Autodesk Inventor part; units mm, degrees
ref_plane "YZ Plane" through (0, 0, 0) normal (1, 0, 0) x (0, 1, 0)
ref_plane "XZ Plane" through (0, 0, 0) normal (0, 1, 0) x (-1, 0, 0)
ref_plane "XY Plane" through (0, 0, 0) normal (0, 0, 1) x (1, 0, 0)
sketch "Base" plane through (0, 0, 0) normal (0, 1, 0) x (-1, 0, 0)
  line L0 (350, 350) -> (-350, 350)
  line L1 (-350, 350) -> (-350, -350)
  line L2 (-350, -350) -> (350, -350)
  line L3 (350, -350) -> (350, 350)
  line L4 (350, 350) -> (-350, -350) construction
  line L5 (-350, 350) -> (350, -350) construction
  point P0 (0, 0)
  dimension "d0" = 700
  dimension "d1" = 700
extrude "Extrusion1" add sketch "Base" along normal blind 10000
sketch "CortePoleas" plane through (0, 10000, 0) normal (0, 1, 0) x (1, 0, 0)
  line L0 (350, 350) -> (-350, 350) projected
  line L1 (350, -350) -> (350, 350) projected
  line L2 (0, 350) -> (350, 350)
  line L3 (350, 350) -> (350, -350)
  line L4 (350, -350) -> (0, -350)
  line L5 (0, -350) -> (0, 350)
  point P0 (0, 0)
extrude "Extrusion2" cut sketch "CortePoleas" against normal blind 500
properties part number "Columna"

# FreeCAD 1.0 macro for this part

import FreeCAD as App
import Part
import Sketcher

V = App.Vector

doc = App.newDocument("Part")
body = doc.addObject("PartDesign::Body", "Body")

# Sketch on XZ plane
sketch1 = body.newObject("Sketcher::SketchObject", "Sketch")
sketch1.AttachmentSupport = (doc.getObject("XZ_Plane"), [""])
sketch1.MapMode = "FlatFace"
sketch1.addGeometry(Part.LineSegment(V(-350, -350, 0), V(-350, 350, 0)), False)
sketch1.addGeometry(Part.LineSegment(V(-350, 350, 0), V(350, 350, 0)), False)
sketch1.addGeometry(Part.LineSegment(V(350, 350, 0), V(350, -350, 0)), False)
sketch1.addGeometry(Part.LineSegment(V(350, -350, 0), V(-350, -350, 0)), False)
sketch1.addConstraint(Sketcher.Constraint("Coincident", 0, 2, 1, 1))
sketch1.addConstraint(Sketcher.Constraint("Coincident", 1, 2, 2, 1))
sketch1.addConstraint(Sketcher.Constraint("Coincident", 2, 2, 3, 1))
sketch1.addConstraint(Sketcher.Constraint("Coincident", 3, 2, 0, 1))
sketch1.addConstraint(Sketcher.Constraint("Vertical", 0))
sketch1.addConstraint(Sketcher.Constraint("Horizontal", 1))
sketch1.addConstraint(Sketcher.Constraint("Vertical", 2))
sketch1.addConstraint(Sketcher.Constraint("Horizontal", 3))
sketch1.addConstraint(Sketcher.Constraint("Symmetric", 0, 2, 2, 2, -1, 1))
sketch1.addConstraint(Sketcher.Constraint("Equal", 3, 0))
sketch1.addConstraint(Sketcher.Constraint("DistanceX", 1, 1, 1, 2, 700.0))
pad1 = body.newObject("PartDesign::Pad", "Pad")
pad1.Profile = sketch1
pad1.Length = 10000
pad1.Reversed = True

# Sketch on XZ plane
sketch2 = body.newObject("Sketcher::SketchObject", "Sketch001")
sketch2.AttachmentSupport = (doc.getObject("XZ_Plane"), [""])
sketch2.MapMode = "FlatFace"
sketch2.AttachmentOffset = App.Placement(V(0, 0, -10000), App.Rotation())
sketch2.addGeometry(Part.LineSegment(V(350, 350, 0), V(350, -350, 0)), False)
sketch2.addGeometry(Part.LineSegment(V(350, -350, 0), V(0, -350, 0)), False)
sketch2.addGeometry(Part.LineSegment(V(0, -350, 0), V(0, 350, 0)), False)
sketch2.addGeometry(Part.LineSegment(V(0, 350, 0), V(350, 350, 0)), False)
sketch2.addConstraint(Sketcher.Constraint("Coincident", 0, 2, 1, 1))
sketch2.addConstraint(Sketcher.Constraint("Coincident", 1, 2, 2, 1))
sketch2.addConstraint(Sketcher.Constraint("Coincident", 2, 2, 3, 1))
sketch2.addConstraint(Sketcher.Constraint("Coincident", 3, 2, 0, 1))
sketch2.addConstraint(Sketcher.Constraint("Vertical", 0))
sketch2.addConstraint(Sketcher.Constraint("Horizontal", 1))
sketch2.addConstraint(Sketcher.Constraint("Vertical", 2))
sketch2.addConstraint(Sketcher.Constraint("Horizontal", 3))
sketch2.addConstraint(Sketcher.Constraint("Symmetric", 1, 2, 2, 2, -1, 1))
sketch2.addConstraint(Sketcher.Constraint("DistanceX", 1, 2, 1, 1, 350.0))
sketch2.addConstraint(Sketcher.Constraint("DistanceY", 0, 2, 0, 1, 700.0))
pocket1 = body.newObject("PartDesign::Pocket", "Pocket")
pocket1.Profile = sketch2
pocket1.Length = 500
pocket1.Reversed = True

doc.recompute()
